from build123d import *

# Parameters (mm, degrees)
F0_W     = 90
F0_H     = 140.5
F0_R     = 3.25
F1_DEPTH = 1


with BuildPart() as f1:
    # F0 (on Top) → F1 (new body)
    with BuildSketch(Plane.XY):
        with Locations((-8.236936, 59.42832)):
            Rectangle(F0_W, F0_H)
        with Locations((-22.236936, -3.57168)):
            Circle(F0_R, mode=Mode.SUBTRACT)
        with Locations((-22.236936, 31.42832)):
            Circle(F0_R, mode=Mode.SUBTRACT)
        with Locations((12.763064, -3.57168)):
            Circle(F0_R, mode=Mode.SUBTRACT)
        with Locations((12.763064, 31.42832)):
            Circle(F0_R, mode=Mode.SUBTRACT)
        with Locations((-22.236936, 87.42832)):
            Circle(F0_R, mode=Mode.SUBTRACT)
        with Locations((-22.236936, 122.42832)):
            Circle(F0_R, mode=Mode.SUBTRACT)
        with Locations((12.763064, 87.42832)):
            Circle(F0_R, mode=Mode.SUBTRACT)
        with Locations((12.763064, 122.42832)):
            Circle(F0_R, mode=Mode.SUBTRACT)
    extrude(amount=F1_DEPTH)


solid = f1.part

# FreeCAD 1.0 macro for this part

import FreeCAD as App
import Part
import Sketcher


def add_polygon(sketch, points):
    """Adds a closed chain of lines whose ends are joined by coincident constraints."""
    first, n = sketch.GeometryCount, len(points)
    for a, b in zip(points, points[1:] + points[:1]):
        sketch.addGeometry(Part.LineSegment(App.Vector(*a, 0), App.Vector(*b, 0)), False)
    for i in range(n):
        sketch.addConstraint(Sketcher.Constraint("Coincident", first + i, 2, first + (i + 1) % n, 1))

doc = App.newDocument("Part")
body = doc.addObject("PartDesign::Body", "Body")

# Sketch on XY plane
sketch1 = doc.addObject("Sketcher::SketchObject", "Sketch")
body.addObject(sketch1)
sketch1.AttachmentSupport = (doc.XY_Plane, [""])
sketch1.MapMode = "FlatFace"
add_polygon(sketch1, [(-53.2, 129.7), (-53.2, -10.8), (36.8, -10.8), (36.8, 129.7)])  # lines 0-3
sketch1.addGeometry(Part.Circle(App.Vector(-22.2, -3.6, 0), App.Vector(0, 0, 1), 3.2), False)  # 4
sketch1.addGeometry(Part.Circle(App.Vector(-22.2, 31.4, 0), App.Vector(0, 0, 1), 3.2), False)  # 5
sketch1.addGeometry(Part.Circle(App.Vector(12.8, -3.6, 0), App.Vector(0, 0, 1), 3.2), False)  # 6
sketch1.addGeometry(Part.Circle(App.Vector(12.8, 31.4, 0), App.Vector(0, 0, 1), 3.2), False)  # 7
sketch1.addGeometry(Part.Circle(App.Vector(-22.2, 87.4, 0), App.Vector(0, 0, 1), 3.2), False)  # 8
sketch1.addGeometry(Part.Circle(App.Vector(-22.2, 122.4, 0), App.Vector(0, 0, 1), 3.2), False)  # 9
sketch1.addGeometry(Part.Circle(App.Vector(12.8, 87.4, 0), App.Vector(0, 0, 1), 3.2), False)  # 10
sketch1.addGeometry(Part.Circle(App.Vector(12.8, 122.4, 0), App.Vector(0, 0, 1), 3.2), False)  # 11
sketch1.addConstraint([
    Sketcher.Constraint("Vertical", 0),
    Sketcher.Constraint("Horizontal", 1),
    Sketcher.Constraint("Vertical", 2),
    Sketcher.Constraint("Horizontal", 3),
    Sketcher.Constraint("Equal", 4, 5),
    Sketcher.Constraint("Equal", 5, 6),
    Sketcher.Constraint("Equal", 6, 7),
    Sketcher.Constraint("Equal", 7, 8),
    Sketcher.Constraint("Equal", 8, 9),
    Sketcher.Constraint("Equal", 9, 10),
    Sketcher.Constraint("Equal", 10, 11),
    Sketcher.Constraint("Horizontal", 4, 3, 6, 3),
    Sketcher.Constraint("Horizontal", 5, 3, 7, 3),
    Sketcher.Constraint("Horizontal", 8, 3, 10, 3),
    Sketcher.Constraint("Horizontal", 9, 3, 11, 3),
    Sketcher.Constraint("Vertical", 4, 3, 5, 3),
    Sketcher.Constraint("Vertical", 6, 3, 7, 3),
    Sketcher.Constraint("Vertical", 5, 3, 8, 3),
    Sketcher.Constraint("Vertical", 8, 3, 9, 3),
    Sketcher.Constraint("Vertical", 7, 3, 10, 3),
    Sketcher.Constraint("Vertical", 10, 3, 11, 3),
    Sketcher.Constraint("Diameter", 4, 6.5),
    Sketcher.Constraint("DistanceX", 1, 1, 1, 2, 90.0),
    Sketcher.Constraint("DistanceY", 0, 2, 0, 1, 140.5),
    Sketcher.Constraint("DistanceY", 4, 3, 5, 3, 35.0),
    Sketcher.Constraint("DistanceX", 4, 3, 6, 3, 35.0),
    Sketcher.Constraint("DistanceY", 5, 3, 8, 3, 56.0),
    Sketcher.Constraint("DistanceY", 8, 3, 9, 3, 35.0),
    Sketcher.Constraint("DistanceX", 0, 2, 4, 3, 31.0),
    Sketcher.Constraint("DistanceY", 0, 2, 4, 3, 7.25),
    Sketcher.Constraint("DistanceY", 4, 3, -1, 1, 3.57168),
    Sketcher.Constraint("DistanceX", 4, 3, -1, 1, 22.236936),
])
pad1 = doc.addObject("PartDesign::Pad", "Pad")
body.addObject(pad1)
pad1.Profile = sketch1
pad1.Length = 1

doc.recompute()
